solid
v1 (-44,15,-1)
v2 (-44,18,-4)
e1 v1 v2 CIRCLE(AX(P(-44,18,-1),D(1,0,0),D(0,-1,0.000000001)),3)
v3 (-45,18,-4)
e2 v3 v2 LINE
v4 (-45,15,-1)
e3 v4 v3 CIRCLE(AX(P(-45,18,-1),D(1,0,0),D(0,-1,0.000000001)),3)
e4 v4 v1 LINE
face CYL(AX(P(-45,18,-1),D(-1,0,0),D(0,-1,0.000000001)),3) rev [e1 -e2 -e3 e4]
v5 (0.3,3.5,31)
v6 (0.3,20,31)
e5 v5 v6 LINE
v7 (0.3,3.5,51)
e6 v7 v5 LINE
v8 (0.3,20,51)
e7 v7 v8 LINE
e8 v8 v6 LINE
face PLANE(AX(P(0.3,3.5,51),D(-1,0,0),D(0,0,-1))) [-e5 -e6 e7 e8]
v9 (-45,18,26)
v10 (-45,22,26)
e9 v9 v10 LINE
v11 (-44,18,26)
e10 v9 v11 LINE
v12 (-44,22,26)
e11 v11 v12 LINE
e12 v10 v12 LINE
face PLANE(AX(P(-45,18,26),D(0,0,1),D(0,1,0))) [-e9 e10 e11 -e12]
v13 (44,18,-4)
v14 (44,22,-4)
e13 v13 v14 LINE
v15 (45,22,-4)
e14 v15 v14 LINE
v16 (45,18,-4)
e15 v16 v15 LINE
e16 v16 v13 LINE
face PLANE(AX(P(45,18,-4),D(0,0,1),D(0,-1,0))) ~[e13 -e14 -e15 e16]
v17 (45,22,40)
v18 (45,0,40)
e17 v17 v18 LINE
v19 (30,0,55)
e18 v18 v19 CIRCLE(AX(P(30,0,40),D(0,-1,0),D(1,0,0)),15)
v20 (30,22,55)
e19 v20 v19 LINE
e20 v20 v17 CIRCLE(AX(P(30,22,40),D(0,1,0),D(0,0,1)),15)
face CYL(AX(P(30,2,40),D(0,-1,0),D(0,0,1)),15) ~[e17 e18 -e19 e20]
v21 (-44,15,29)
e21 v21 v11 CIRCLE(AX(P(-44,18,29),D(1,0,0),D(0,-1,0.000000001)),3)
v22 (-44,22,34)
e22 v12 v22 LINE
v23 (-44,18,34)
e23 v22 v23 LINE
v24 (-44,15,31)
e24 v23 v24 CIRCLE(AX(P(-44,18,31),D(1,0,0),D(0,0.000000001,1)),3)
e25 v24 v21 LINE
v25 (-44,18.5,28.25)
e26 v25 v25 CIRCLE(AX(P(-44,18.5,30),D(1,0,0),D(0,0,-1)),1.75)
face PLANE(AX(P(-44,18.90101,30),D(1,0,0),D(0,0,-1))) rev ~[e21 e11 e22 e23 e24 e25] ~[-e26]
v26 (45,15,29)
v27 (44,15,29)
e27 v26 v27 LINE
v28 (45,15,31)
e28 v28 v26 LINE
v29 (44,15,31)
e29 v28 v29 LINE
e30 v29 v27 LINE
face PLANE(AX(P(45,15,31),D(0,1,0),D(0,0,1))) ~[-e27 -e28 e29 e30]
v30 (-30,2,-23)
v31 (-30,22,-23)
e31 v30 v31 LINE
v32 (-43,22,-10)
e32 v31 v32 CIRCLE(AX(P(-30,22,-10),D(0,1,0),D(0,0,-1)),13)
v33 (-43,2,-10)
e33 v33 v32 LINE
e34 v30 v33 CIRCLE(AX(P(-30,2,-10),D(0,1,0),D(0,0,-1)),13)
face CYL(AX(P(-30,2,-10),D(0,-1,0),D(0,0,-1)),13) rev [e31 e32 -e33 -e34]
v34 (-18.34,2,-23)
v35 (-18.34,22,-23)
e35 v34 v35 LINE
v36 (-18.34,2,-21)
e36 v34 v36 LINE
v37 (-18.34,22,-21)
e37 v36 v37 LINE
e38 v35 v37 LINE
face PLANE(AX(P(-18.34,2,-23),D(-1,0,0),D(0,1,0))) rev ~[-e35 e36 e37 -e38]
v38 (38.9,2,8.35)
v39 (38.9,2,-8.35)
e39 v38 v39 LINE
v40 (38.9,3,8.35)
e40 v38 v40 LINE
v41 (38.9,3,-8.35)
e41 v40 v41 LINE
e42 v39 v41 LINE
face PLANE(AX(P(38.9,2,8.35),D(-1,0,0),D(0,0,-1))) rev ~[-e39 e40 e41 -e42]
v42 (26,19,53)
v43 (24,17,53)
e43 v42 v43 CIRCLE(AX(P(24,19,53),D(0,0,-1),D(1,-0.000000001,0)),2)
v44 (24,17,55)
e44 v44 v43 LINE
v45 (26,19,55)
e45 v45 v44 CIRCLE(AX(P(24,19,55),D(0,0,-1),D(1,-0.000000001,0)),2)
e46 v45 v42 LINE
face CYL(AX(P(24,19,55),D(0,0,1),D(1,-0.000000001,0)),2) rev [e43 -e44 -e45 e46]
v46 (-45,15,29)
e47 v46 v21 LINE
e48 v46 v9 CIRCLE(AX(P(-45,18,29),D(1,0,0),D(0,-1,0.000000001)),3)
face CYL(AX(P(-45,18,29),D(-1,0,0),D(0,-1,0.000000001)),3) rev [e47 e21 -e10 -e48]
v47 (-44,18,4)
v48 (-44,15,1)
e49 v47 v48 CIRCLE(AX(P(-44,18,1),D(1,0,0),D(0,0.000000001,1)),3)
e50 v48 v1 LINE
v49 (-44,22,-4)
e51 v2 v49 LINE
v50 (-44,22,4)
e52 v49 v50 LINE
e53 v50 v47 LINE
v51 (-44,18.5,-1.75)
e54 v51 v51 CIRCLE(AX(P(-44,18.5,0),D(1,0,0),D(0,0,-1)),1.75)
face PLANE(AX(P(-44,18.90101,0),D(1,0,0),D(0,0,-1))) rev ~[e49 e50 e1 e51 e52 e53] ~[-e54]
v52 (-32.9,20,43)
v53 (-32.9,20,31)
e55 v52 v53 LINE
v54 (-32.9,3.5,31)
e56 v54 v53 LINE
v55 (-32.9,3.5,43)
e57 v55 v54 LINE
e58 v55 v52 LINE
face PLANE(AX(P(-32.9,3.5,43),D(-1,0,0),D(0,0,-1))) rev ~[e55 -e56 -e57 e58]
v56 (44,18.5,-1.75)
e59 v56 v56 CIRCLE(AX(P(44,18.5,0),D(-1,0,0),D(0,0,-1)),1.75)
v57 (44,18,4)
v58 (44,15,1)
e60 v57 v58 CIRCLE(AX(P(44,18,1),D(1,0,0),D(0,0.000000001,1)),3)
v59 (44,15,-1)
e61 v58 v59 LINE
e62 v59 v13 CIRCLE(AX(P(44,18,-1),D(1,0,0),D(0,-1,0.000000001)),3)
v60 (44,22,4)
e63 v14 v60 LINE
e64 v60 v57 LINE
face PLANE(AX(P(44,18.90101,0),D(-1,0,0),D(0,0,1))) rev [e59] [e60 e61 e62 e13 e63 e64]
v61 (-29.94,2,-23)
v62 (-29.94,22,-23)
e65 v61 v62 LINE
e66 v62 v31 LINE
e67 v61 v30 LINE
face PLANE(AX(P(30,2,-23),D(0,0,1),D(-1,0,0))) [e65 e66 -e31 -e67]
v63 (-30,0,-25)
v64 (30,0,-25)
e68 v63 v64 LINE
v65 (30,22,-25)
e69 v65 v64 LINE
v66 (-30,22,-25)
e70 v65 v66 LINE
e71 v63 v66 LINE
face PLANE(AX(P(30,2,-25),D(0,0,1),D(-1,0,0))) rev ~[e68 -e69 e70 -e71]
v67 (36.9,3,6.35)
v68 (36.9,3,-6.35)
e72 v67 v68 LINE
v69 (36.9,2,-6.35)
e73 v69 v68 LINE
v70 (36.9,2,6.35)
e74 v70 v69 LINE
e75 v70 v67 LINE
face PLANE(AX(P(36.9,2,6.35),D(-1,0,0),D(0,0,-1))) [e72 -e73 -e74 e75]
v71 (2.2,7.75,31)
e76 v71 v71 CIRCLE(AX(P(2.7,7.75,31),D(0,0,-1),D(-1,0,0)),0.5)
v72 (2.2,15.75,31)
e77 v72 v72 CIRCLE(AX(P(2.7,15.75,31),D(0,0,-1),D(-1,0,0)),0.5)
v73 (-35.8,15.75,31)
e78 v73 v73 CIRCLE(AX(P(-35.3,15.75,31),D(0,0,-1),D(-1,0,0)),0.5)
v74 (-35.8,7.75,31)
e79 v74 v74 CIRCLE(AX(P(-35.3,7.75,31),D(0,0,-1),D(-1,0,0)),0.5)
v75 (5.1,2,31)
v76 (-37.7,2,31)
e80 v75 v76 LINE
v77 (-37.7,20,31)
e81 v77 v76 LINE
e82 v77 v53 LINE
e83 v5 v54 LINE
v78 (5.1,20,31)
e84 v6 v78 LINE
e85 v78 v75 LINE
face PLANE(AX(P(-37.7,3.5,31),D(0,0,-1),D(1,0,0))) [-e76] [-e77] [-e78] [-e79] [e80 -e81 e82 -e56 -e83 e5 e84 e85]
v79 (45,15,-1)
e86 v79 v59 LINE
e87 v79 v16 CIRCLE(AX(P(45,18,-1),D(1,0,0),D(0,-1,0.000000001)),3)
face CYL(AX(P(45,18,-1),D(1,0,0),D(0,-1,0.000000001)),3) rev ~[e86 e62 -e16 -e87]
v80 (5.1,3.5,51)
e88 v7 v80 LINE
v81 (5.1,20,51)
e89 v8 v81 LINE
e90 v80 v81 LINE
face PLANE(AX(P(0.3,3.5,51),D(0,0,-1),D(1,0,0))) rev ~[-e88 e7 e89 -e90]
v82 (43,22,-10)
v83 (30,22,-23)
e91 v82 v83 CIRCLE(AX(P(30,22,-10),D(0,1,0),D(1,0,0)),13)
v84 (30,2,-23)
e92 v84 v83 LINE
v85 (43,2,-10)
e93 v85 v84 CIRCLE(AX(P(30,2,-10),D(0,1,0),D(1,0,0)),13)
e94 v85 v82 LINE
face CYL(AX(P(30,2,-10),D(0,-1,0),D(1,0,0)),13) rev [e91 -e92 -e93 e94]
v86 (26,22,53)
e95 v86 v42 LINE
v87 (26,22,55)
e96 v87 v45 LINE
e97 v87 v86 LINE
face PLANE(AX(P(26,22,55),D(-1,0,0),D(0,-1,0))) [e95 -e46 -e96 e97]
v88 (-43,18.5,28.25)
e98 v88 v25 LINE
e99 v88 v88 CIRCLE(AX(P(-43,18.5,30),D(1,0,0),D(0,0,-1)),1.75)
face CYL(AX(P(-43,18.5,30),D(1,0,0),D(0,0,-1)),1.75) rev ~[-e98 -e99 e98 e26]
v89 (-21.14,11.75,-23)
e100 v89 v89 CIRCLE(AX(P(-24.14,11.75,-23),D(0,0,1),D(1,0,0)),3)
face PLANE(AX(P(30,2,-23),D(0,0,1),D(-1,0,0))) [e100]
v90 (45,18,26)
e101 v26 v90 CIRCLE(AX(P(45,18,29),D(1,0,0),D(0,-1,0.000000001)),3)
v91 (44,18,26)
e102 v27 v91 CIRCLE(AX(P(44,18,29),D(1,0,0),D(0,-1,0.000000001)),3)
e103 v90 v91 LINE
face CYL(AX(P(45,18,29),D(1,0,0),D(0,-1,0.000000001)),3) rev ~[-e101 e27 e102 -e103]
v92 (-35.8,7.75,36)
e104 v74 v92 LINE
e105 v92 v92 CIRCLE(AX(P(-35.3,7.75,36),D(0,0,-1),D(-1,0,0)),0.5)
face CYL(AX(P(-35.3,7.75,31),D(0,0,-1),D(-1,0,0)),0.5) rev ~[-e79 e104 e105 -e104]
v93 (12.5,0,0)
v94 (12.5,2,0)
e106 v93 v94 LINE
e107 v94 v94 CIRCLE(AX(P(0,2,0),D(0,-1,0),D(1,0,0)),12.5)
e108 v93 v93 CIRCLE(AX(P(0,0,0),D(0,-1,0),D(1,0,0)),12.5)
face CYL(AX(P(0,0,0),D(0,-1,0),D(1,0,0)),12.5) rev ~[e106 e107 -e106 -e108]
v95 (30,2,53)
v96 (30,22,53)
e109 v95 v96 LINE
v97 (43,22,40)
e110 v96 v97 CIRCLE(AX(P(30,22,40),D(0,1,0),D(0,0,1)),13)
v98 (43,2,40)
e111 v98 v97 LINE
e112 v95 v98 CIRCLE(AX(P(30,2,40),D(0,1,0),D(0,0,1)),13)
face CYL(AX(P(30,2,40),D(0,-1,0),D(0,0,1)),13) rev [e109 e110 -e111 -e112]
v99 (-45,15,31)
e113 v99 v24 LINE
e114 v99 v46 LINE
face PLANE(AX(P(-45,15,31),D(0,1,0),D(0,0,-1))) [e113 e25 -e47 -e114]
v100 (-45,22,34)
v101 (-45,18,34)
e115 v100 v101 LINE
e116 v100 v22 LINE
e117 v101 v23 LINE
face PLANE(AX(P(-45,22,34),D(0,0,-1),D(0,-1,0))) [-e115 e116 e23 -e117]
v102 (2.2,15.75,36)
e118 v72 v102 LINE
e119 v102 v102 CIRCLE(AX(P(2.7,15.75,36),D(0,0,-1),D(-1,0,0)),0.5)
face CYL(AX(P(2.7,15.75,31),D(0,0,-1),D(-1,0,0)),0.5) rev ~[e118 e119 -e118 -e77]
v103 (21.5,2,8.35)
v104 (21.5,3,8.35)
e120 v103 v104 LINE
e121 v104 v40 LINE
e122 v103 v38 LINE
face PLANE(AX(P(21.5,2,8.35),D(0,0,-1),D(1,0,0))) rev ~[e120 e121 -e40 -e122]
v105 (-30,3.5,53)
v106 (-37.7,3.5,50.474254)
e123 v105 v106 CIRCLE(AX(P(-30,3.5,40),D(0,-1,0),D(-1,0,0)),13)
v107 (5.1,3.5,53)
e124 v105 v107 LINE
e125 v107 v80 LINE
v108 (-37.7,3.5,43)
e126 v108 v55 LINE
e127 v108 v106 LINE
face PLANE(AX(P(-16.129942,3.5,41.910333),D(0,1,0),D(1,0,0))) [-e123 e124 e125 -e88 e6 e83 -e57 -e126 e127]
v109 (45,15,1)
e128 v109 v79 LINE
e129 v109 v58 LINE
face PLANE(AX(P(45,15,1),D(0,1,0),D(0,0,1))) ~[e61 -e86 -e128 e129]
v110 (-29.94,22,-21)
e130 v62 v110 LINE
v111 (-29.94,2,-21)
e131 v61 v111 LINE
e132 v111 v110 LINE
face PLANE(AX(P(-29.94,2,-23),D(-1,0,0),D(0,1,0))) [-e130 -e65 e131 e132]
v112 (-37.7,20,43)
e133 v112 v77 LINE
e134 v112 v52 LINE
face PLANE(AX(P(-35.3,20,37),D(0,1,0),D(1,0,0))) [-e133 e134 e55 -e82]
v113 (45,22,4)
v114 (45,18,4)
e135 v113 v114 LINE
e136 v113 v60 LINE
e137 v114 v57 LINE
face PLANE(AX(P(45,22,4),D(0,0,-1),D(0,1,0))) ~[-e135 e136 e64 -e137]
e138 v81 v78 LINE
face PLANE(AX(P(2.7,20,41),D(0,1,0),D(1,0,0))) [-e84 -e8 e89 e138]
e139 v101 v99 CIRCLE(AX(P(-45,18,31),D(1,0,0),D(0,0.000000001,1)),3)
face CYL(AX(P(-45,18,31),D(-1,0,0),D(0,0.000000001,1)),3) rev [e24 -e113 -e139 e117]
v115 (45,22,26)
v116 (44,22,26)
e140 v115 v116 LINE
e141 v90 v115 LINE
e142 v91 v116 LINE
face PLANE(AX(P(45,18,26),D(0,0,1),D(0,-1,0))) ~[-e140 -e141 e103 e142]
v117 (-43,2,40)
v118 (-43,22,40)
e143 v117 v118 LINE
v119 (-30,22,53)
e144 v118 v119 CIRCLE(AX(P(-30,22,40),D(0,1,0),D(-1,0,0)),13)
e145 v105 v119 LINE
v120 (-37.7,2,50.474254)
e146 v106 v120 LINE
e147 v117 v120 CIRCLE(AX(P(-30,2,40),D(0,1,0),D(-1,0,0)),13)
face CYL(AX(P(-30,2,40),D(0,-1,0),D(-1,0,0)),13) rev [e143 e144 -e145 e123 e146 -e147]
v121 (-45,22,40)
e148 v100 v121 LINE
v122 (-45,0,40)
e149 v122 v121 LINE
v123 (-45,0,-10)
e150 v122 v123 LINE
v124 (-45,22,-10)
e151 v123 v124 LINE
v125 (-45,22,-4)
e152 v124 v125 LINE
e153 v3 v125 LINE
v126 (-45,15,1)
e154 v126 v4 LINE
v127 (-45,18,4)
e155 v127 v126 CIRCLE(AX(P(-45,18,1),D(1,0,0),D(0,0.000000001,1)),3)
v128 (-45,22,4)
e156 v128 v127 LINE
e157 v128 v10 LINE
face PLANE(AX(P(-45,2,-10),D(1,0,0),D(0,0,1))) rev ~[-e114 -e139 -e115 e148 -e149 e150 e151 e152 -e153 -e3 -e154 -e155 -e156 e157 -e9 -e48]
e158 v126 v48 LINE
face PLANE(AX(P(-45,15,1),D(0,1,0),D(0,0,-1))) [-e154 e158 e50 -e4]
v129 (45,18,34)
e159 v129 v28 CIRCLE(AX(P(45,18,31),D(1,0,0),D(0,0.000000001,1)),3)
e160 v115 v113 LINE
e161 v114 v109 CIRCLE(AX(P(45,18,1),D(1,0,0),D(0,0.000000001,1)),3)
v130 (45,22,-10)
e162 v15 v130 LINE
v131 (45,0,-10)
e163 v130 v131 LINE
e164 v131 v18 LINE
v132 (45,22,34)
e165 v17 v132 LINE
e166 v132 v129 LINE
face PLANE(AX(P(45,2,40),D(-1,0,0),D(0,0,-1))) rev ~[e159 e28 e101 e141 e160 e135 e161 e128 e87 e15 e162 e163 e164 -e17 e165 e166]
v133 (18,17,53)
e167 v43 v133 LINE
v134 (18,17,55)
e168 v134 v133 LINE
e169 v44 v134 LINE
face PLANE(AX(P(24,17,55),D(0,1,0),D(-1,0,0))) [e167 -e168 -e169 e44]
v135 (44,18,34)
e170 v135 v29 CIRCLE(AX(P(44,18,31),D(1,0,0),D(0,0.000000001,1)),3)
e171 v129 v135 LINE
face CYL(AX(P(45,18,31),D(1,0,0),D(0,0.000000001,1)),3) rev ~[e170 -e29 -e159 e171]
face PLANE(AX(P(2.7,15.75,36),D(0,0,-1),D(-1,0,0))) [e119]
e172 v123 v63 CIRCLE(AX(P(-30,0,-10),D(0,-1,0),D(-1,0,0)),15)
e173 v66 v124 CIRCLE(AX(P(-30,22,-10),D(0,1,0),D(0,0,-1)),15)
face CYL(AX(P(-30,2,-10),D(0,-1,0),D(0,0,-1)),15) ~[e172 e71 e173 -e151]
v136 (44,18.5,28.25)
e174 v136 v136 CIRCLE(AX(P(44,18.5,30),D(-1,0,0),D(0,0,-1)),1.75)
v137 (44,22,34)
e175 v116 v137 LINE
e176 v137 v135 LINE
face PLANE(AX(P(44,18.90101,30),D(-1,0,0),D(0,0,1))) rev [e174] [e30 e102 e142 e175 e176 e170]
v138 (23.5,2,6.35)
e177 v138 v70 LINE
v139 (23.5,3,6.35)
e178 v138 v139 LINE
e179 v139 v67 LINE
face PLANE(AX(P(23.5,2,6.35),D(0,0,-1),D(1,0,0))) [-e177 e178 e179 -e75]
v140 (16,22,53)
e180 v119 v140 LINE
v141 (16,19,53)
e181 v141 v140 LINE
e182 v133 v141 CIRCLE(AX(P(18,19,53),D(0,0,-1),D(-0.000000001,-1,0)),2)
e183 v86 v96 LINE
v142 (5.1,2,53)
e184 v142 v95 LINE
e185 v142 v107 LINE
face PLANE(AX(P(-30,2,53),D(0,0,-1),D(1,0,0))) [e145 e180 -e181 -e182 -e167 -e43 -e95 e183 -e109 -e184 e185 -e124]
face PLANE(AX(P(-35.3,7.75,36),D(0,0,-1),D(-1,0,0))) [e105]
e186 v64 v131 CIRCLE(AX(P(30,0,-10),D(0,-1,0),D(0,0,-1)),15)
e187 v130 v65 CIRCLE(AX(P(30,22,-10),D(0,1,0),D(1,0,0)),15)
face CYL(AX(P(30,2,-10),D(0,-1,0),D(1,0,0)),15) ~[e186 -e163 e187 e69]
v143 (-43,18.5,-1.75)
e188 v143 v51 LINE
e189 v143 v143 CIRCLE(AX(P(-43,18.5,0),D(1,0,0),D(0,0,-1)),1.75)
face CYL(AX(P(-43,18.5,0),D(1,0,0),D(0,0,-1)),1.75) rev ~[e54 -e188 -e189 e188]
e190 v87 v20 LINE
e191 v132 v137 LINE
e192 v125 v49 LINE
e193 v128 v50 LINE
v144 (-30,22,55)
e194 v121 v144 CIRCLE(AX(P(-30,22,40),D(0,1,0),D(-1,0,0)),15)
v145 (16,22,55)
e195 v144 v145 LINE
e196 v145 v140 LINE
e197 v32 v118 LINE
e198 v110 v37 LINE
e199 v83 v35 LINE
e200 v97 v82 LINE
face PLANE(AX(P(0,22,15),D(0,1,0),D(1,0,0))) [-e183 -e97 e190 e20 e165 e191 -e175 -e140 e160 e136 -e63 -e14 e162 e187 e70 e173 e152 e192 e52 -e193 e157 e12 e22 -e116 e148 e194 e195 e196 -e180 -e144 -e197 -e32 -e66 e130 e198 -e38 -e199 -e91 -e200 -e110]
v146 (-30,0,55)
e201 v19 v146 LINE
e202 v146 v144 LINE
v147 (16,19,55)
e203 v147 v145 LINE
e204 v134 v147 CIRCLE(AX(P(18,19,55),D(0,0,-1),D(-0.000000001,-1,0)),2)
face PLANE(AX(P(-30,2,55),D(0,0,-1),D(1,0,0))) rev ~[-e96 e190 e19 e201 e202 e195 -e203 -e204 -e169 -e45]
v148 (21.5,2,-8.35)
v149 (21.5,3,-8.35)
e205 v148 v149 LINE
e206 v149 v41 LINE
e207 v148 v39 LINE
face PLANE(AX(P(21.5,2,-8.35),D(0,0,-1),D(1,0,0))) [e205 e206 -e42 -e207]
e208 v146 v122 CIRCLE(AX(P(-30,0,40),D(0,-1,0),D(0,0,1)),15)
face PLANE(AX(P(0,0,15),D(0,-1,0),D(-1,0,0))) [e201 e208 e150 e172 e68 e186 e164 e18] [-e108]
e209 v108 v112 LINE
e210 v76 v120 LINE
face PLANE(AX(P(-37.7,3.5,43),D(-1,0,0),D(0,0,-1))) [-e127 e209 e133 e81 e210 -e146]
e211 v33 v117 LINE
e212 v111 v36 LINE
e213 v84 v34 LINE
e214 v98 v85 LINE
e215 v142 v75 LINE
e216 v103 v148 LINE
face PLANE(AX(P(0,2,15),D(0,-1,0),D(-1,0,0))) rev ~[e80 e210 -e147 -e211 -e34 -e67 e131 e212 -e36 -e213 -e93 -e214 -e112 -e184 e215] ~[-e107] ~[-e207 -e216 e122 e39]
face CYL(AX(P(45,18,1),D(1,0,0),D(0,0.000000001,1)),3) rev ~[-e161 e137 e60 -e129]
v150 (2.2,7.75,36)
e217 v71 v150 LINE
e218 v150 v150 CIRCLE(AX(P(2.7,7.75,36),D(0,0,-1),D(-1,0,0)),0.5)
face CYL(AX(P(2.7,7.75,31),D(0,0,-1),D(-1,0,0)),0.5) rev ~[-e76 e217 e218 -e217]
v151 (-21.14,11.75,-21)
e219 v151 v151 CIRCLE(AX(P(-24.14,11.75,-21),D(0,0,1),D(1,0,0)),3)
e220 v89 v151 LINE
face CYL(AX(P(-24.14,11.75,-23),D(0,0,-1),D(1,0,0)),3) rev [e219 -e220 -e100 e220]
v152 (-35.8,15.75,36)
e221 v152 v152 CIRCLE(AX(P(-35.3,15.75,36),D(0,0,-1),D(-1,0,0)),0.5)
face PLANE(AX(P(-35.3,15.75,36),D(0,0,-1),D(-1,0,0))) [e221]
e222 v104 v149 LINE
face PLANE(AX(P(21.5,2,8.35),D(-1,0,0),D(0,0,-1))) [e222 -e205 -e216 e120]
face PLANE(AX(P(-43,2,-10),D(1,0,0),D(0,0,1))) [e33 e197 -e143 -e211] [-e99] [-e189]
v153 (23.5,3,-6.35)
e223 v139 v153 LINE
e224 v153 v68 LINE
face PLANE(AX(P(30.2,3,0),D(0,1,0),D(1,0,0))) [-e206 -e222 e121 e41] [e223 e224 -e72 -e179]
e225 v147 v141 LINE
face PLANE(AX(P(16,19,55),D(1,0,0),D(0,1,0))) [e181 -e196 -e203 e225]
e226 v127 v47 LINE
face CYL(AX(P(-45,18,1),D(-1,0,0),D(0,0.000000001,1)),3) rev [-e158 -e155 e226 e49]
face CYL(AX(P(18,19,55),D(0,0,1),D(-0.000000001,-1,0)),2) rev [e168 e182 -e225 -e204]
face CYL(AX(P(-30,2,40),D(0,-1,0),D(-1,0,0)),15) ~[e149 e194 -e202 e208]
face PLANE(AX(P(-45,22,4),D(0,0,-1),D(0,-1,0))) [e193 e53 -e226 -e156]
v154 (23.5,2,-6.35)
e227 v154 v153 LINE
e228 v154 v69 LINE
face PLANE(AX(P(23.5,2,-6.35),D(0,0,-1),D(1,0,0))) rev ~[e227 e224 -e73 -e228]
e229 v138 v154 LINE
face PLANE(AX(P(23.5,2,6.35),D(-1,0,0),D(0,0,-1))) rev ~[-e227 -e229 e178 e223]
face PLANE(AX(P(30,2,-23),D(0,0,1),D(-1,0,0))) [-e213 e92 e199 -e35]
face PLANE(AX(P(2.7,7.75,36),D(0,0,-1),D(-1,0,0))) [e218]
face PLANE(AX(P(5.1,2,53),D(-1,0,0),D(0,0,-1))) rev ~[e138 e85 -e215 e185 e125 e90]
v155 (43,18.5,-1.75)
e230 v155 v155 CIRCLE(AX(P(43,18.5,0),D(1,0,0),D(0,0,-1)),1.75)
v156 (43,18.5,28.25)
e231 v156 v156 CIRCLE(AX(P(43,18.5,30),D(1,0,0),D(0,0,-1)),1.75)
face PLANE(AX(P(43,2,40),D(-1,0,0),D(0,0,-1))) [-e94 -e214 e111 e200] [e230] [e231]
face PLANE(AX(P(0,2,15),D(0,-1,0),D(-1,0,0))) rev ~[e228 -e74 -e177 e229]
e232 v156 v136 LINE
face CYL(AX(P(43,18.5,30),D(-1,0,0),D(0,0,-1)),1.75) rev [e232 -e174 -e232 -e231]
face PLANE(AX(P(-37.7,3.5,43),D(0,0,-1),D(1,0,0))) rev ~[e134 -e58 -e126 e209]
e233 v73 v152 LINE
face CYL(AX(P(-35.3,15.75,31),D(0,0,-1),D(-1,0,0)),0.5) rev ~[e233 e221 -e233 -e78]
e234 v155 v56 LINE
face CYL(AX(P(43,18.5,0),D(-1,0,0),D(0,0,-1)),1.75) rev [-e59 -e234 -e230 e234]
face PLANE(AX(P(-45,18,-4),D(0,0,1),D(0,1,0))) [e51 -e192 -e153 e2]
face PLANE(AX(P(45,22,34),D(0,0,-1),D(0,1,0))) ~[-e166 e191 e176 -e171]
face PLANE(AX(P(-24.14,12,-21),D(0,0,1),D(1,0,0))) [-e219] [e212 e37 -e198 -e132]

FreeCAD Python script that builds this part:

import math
import FreeCAD as App
import Part
import Sketcher
from FreeCAD import Vector
Q = App.Units.Quantity

doc = App.newDocument("Part")
body = doc.addObject("PartDesign::Body", "Body")

sketch1 = doc.addObject("Sketcher::SketchObject", "Sketch")
body.addObject(sketch1)
sketch1.AttachmentSupport = (doc.XZ_Plane, [""])
sketch1.MapMode = "FlatFace"
sketch1.addGeometry(Part.LineSegment(Vector(30, -25, 0), Vector(-30, -25, 0)), False)
sketch1.addGeometry(Part.ArcOfCircle(Part.Circle(Vector(-30, -10, 0), Vector(0, 0, 1), 15), math.radians(180), math.radians(270)), False)
sketch1.addGeometry(Part.LineSegment(Vector(-45, -10, 0), Vector(-45, 40, 0)), False)
sketch1.addGeometry(Part.ArcOfCircle(Part.Circle(Vector(-30, 40, 0), Vector(0, 0, 1), 15), math.radians(90), math.radians(180)), False)
sketch1.addGeometry(Part.LineSegment(Vector(-30, 55, 0), Vector(30, 55, 0)), False)
sketch1.addGeometry(Part.ArcOfCircle(Part.Circle(Vector(30, 40, 0), Vector(0, 0, 1), 15), math.radians(0), math.radians(90)), False)
sketch1.addGeometry(Part.LineSegment(Vector(45, 40, 0), Vector(45, -10, 0)), False)
sketch1.addGeometry(Part.ArcOfCircle(Part.Circle(Vector(30, -10, 0), Vector(0, 0, 1), 15), math.radians(-90), math.radians(0)), False)
sketch1.addConstraint(Sketcher.Constraint("Tangent", 0, 2, 1, 2))
sketch1.addConstraint(Sketcher.Constraint("Tangent", 1, 1, 2, 1))
sketch1.addConstraint(Sketcher.Constraint("Tangent", 2, 2, 3, 2))
sketch1.addConstraint(Sketcher.Constraint("Tangent", 3, 1, 4, 1))
sketch1.addConstraint(Sketcher.Constraint("Tangent", 4, 2, 5, 2))
sketch1.addConstraint(Sketcher.Constraint("Tangent", 5, 1, 6, 1))
sketch1.addConstraint(Sketcher.Constraint("Tangent", 6, 2, 7, 2))
sketch1.addConstraint(Sketcher.Constraint("Tangent", 7, 1, 0, 1))
sketch1.addConstraint(Sketcher.Constraint("Horizontal", 0))
sketch1.addConstraint(Sketcher.Constraint("Vertical", 2))
sketch1.addConstraint(Sketcher.Constraint("Horizontal", 4))
sketch1.addConstraint(Sketcher.Constraint("Vertical", 6))
sketch1.addConstraint(Sketcher.Constraint("Equal", 1, 3))
sketch1.addConstraint(Sketcher.Constraint("Equal", 3, 5))
sketch1.addConstraint(Sketcher.Constraint("Equal", 5, 7))
sketch1.addConstraint(Sketcher.Constraint("Radius", 1, 15.0))
sketch1.addConstraint(Sketcher.Constraint("DistanceX", 0, 2, 0, 1, 60.0))
sketch1.addConstraint(Sketcher.Constraint("DistanceY", 2, 1, 2, 2, 50.0))
sketch1.addConstraint(Sketcher.Constraint("DistanceX", 1, 3, -1, 1, 30.0))
sketch1.addConstraint(Sketcher.Constraint("DistanceY", 1, 3, -1, 1, 10.0))
pad1 = doc.addObject("PartDesign::Pad", "Pad")
body.addObject(pad1)
pad1.Profile = sketch1
pad1.Length = 2
pad1.Reversed = True

sketch2 = doc.addObject("Sketcher::SketchObject", "Sketch001")
body.addObject(sketch2)
sketch2.AttachmentSupport = (doc.XZ_Plane, [""])
sketch2.MapMode = "FlatFace"
sketch2.AttachmentOffset = App.Placement(Vector(0, 0, -2), App.Rotation())
sketch2.addGeometry(Part.LineSegment(Vector(30, -25, 0), Vector(-30, -25, 0)), False)
sketch2.addGeometry(Part.ArcOfCircle(Part.Circle(Vector(-30, -10, 0), Vector(0, 0, 1), 15), math.radians(180), math.radians(270)), False)
sketch2.addGeometry(Part.LineSegment(Vector(-45, -10, 0), Vector(-45, 40, 0)), False)
sketch2.addGeometry(Part.ArcOfCircle(Part.Circle(Vector(-30, 40, 0), Vector(0, 0, 1), 15), math.radians(90), math.radians(180)), False)
sketch2.addGeometry(Part.LineSegment(Vector(-30, 55, 0), Vector(30, 55, 0)), False)
sketch2.addGeometry(Part.ArcOfCircle(Part.Circle(Vector(30, 40, 0), Vector(0, 0, 1), 15), math.radians(0), math.radians(90)), False)
sketch2.addGeometry(Part.LineSegment(Vector(45, 40, 0), Vector(45, -10, 0)), False)
sketch2.addGeometry(Part.ArcOfCircle(Part.Circle(Vector(30, -10, 0), Vector(0, 0, 1), 15), math.radians(-90), math.radians(0)), False)
sketch2.addGeometry(Part.LineSegment(Vector(-30, -23, 0), Vector(30, -23, 0)), False)
sketch2.addGeometry(Part.ArcOfCircle(Part.Circle(Vector(30, -10, 0), Vector(0, 0, 1), 13), math.radians(-90), math.radians(0)), False)
sketch2.addGeometry(Part.LineSegment(Vector(43, -10, 0), Vector(43, 40, 0)), False)
sketch2.addGeometry(Part.ArcOfCircle(Part.Circle(Vector(30, 40, 0), Vector(0, 0, 1), 13), math.radians(0), math.radians(90)), False)
sketch2.addGeometry(Part.LineSegment(Vector(30, 53, 0), Vector(-30, 53, 0)), False)
sketch2.addGeometry(Part.ArcOfCircle(Part.Circle(Vector(-30, 40, 0), Vector(0, 0, 1), 13), math.radians(90), math.radians(180)), False)
sketch2.addGeometry(Part.LineSegment(Vector(-43, 40, 0), Vector(-43, -10, 0)), False)
sketch2.addGeometry(Part.ArcOfCircle(Part.Circle(Vector(-30, -10, 0), Vector(0, 0, 1), 13), math.radians(-180), math.radians(-90)), False)
sketch2.addConstraint(Sketcher.Constraint("Tangent", 0, 2, 1, 2))
sketch2.addConstraint(Sketcher.Constraint("Tangent", 1, 1, 2, 1))
sketch2.addConstraint(Sketcher.Constraint("Tangent", 2, 2, 3, 2))
sketch2.addConstraint(Sketcher.Constraint("Tangent", 3, 1, 4, 1))
sketch2.addConstraint(Sketcher.Constraint("Tangent", 4, 2, 5, 2))
sketch2.addConstraint(Sketcher.Constraint("Tangent", 5, 1, 6, 1))
sketch2.addConstraint(Sketcher.Constraint("Tangent", 6, 2, 7, 2))
sketch2.addConstraint(Sketcher.Constraint("Tangent", 7, 1, 0, 1))
sketch2.addConstraint(Sketcher.Constraint("Tangent", 8, 2, 9, 1))
sketch2.addConstraint(Sketcher.Constraint("Tangent", 9, 2, 10, 1))
sketch2.addConstraint(Sketcher.Constraint("Tangent", 10, 2, 11, 1))
sketch2.addConstraint(Sketcher.Constraint("Tangent", 11, 2, 12, 1))
sketch2.addConstraint(Sketcher.Constraint("Tangent", 12, 2, 13, 1))
sketch2.addConstraint(Sketcher.Constraint("Tangent", 13, 2, 14, 1))
sketch2.addConstraint(Sketcher.Constraint("Tangent", 14, 2, 15, 1))
sketch2.addConstraint(Sketcher.Constraint("Tangent", 15, 2, 8, 1))
sketch2.addConstraint(Sketcher.Constraint("Horizontal", 0))
sketch2.addConstraint(Sketcher.Constraint("Vertical", 2))
sketch2.addConstraint(Sketcher.Constraint("Horizontal", 4))
sketch2.addConstraint(Sketcher.Constraint("Vertical", 6))
sketch2.addConstraint(Sketcher.Constraint("Horizontal", 8))
sketch2.addConstraint(Sketcher.Constraint("Vertical", 10))
sketch2.addConstraint(Sketcher.Constraint("Horizontal", 12))
sketch2.addConstraint(Sketcher.Constraint("Vertical", 14))
sketch2.addConstraint(Sketcher.Constraint("Coincident", 9, 3, 7, 3))
sketch2.addConstraint(Sketcher.Constraint("Coincident", 11, 3, 5, 3))
sketch2.addConstraint(Sketcher.Constraint("Coincident", 13, 3, 3, 3))
sketch2.addConstraint(Sketcher.Constraint("Equal", 1, 3))
sketch2.addConstraint(Sketcher.Constraint("Equal", 3, 5))
sketch2.addConstraint(Sketcher.Constraint("Equal", 5, 7))
sketch2.addConstraint(Sketcher.Constraint("Equal", 13, 15))
sketch2.addConstraint(Sketcher.Constraint("Radius", 1, 15.0))
sketch2.addConstraint(Sketcher.Constraint("Radius", 9, 13.0))
sketch2.addConstraint(Sketcher.Constraint("DistanceX", 0, 2, 0, 1, 60.0))
sketch2.addConstraint(Sketcher.Constraint("DistanceY", 2, 1, 2, 2, 50.0))
sketch2.addConstraint(Sketcher.Constraint("DistanceX", 1, 3, -1, 1, 30.0))
sketch2.addConstraint(Sketcher.Constraint("DistanceY", 1, 3, -1, 1, 10.0))
pad2 = doc.addObject("PartDesign::Pad", "Pad001")
body.addObject(pad2)
pad2.Profile = sketch2
pad2.Length = 20
pad2.Reversed = True

sketch3 = doc.addObject("Sketcher::SketchObject", "Sketch002")
body.addObject(sketch3)
sketch3.AttachmentSupport = (doc.XZ_Plane, [""])
sketch3.MapMode = "FlatFace"
sketch3.addGeometry(Part.Circle(Vector(0, 0, 0), Vector(0, 0, 1), 12), False)
sketch3.addConstraint(Sketcher.Constraint("Coincident", 0, 3, -1, 1))
sketch3.addConstraint(Sketcher.Constraint("Diameter", 0, 25.0))
pocket1 = doc.addObject("PartDesign::Pocket", "Pocket")
body.addObject(pocket1)
pocket1.Profile = sketch3
pocket1.Type = "ThroughAll"

sketch4 = doc.addObject("Sketcher::SketchObject", "Sketch003")
body.addObject(sketch4)
sketch4.AttachmentSupport = (doc.XZ_Plane, [""])
sketch4.MapMode = "FlatFace"
sketch4.AttachmentOffset = App.Placement(Vector(0, 0, -2), App.Rotation())
sketch4.addGeometry(Part.LineSegment(Vector(-36, 53, 0), Vector(5.1, 53, 0)), False)
sketch4.addGeometry(Part.LineSegment(Vector(5.1, 53, 0), Vector(5.1, 31, 0)), False)
sketch4.addGeometry(Part.LineSegment(Vector(5.1, 31, 0), Vector(-37.7, 31, 0)), False)
sketch4.addGeometry(Part.LineSegment(Vector(-37.7, 31, 0), Vector(-37.7, 51.3, 0)), False)
sketch4.addGeometry(Part.LineSegment(Vector(-37.7, 51.3, 0), Vector(-36, 53, 0)), False)
sketch4.addConstraint(Sketcher.Constraint("Coincident", 0, 2, 1, 1))
sketch4.addConstraint(Sketcher.Constraint("Coincident", 1, 2, 2, 1))
sketch4.addConstraint(Sketcher.Constraint("Coincident", 2, 2, 3, 1))
sketch4.addConstraint(Sketcher.Constraint("Coincident", 3, 2, 4, 1))
sketch4.addConstraint(Sketcher.Constraint("Coincident", 4, 2, 0, 1))
sketch4.addConstraint(Sketcher.Constraint("Horizontal", 0))
sketch4.addConstraint(Sketcher.Constraint("Vertical", 1))
sketch4.addConstraint(Sketcher.Constraint("Horizontal", 2))
sketch4.addConstraint(Sketcher.Constraint("Vertical", 3))
sketch4.addConstraint(Sketcher.Constraint("DistanceY", 1, 2, 1, 1, 22.0))
sketch4.addConstraint(Sketcher.Constraint("Angle", 4, Q("45 deg")))
sketch4.addConstraint(Sketcher.Constraint("DistanceX", 2, 2, 2, 1, 42.8))
sketch4.addConstraint(Sketcher.Constraint("DistanceY", -1, 1, 0, 2, 53.0))
sketch4.addConstraint(Sketcher.Constraint("Distance", 4, 2.4))
sketch4.addConstraint(Sketcher.Constraint("DistanceX", -1, 1, 0, 2, 5.1))
pad3 = doc.addObject("PartDesign::Pad", "Pad002")
body.addObject(pad3)
pad3.Profile = sketch4
pad3.Length = 1.5
pad3.Reversed = True

sketch5 = doc.addObject("Sketcher::SketchObject", "Sketch004")
body.addObject(sketch5)
sketch5.AttachmentSupport = (doc.XZ_Plane, [""])
sketch5.MapMode = "FlatFace"
sketch5.AttachmentOffset = App.Placement(Vector(0, 0, -2), App.Rotation())
sketch5.addGeometry(Part.LineSegment(Vector(22, -8, 0), Vector(22, 8, 0)), False)
sketch5.addGeometry(Part.LineSegment(Vector(22, 8, 0), Vector(39, 8, 0)), False)
sketch5.addGeometry(Part.LineSegment(Vector(39, 8, 0), Vector(39, -8, 0)), False)
sketch5.addGeometry(Part.LineSegment(Vector(39, -8, 0), Vector(22, -8, 0)), False)
sketch5.addGeometry(Part.LineSegment(Vector(37, 6, 0), Vector(24, 6, 0)), False)
sketch5.addGeometry(Part.LineSegment(Vector(24, 6, 0), Vector(24, -6, 0)), False)
sketch5.addGeometry(Part.LineSegment(Vector(24, -6, 0), Vector(37, -6, 0)), False)
sketch5.addGeometry(Part.LineSegment(Vector(37, -6, 0), Vector(37, 6, 0)), False)
sketch5.addConstraint(Sketcher.Constraint("Coincident", 0, 2, 1, 1))
sketch5.addConstraint(Sketcher.Constraint("Coincident", 1, 2, 2, 1))
sketch5.addConstraint(Sketcher.Constraint("Coincident", 2, 2, 3, 1))
sketch5.addConstraint(Sketcher.Constraint("Coincident", 3, 2, 0, 1))
sketch5.addConstraint(Sketcher.Constraint("Coincident", 4, 2, 5, 1))
sketch5.addConstraint(Sketcher.Constraint("Coincident", 5, 2, 6, 1))
sketch5.addConstraint(Sketcher.Constraint("Coincident", 6, 2, 7, 1))
sketch5.addConstraint(Sketcher.Constraint("Coincident", 7, 2, 4, 1))
sketch5.addConstraint(Sketcher.Constraint("Vertical", 0))
sketch5.addConstraint(Sketcher.Constraint("Horizontal", 1))
sketch5.addConstraint(Sketcher.Constraint("Vertical", 2))
sketch5.addConstraint(Sketcher.Constraint("Horizontal", 3))
sketch5.addConstraint(Sketcher.Constraint("Horizontal", 4))
sketch5.addConstraint(Sketcher.Constraint("Vertical", 5))
sketch5.addConstraint(Sketcher.Constraint("Horizontal", 6))
sketch5.addConstraint(Sketcher.Constraint("Vertical", 7))
sketch5.addConstraint(Sketcher.Constraint("DistanceX", 1, 1, 1, 2, 17.4))
sketch5.addConstraint(Sketcher.Constraint("DistanceX", 4, 2, 4, 1, 13.4))
sketch5.addConstraint(Sketcher.Constraint("DistanceY", 0, 1, 0, 2, 16.7))
sketch5.addConstraint(Sketcher.Constraint("DistanceY", 5, 2, 5, 1, 12.7))
sketch5.addConstraint(Sketcher.Constraint("DistanceX", 0, 2, 4, 2, 2.0))
sketch5.addConstraint(Sketcher.Constraint("DistanceY", 4, 2, 0, 2, 2.0))
sketch5.addConstraint(Sketcher.Constraint("DistanceX", -1, 1, 0, 2, 21.5))
sketch5.addConstraint(Sketcher.Constraint("DistanceY", -1, 1, 0, 2, 8.35))
pad4 = doc.addObject("PartDesign::Pad", "Pad003")
body.addObject(pad4)
pad4.Profile = sketch5
pad4.Length = 1
pad4.Reversed = True

sketch6 = doc.addObject("Sketcher::SketchObject", "Sketch005")
body.addObject(sketch6)
sketch6.AttachmentSupport = (doc.XY_Plane, [""])
sketch6.MapMode = "FlatFace"
sketch6.AttachmentOffset = App.Placement(Vector(0, 0, -23), App.Rotation())
sketch6.addGeometry(Part.LineSegment(Vector(-29.9, 22, 0), Vector(-29.9, 2, 0)), False)
sketch6.addGeometry(Part.LineSegment(Vector(-29.9, 2, 0), Vector(-18.3, 2, 0)), False)
sketch6.addGeometry(Part.LineSegment(Vector(-18.3, 2, 0), Vector(-18.3, 22, 0)), False)
sketch6.addGeometry(Part.LineSegment(Vector(-18.3, 22, 0), Vector(-29.9, 22, 0)), False)
sketch6.addGeometry(Part.Circle(Vector(-24.1, 11.8, 0), Vector(0, 0, 1), 3), False)
sketch6.addConstraint(Sketcher.Constraint("Coincident", 0, 2, 1, 1))
sketch6.addConstraint(Sketcher.Constraint("Coincident", 1, 2, 2, 1))
sketch6.addConstraint(Sketcher.Constraint("Coincident", 2, 2, 3, 1))
sketch6.addConstraint(Sketcher.Constraint("Coincident", 3, 2, 0, 1))
sketch6.addConstraint(Sketcher.Constraint("Vertical", 0))
sketch6.addConstraint(Sketcher.Constraint("Horizontal", 1))
sketch6.addConstraint(Sketcher.Constraint("Vertical", 2))
sketch6.addConstraint(Sketcher.Constraint("Horizontal", 3))
sketch6.addConstraint(Sketcher.Constraint("Diameter", 4, 6.0))
sketch6.addConstraint(Sketcher.Constraint("DistanceY", 0, 2, 0, 1, 20.0))
sketch6.addConstraint(Sketcher.Constraint("DistanceX", 1, 1, 1, 2, 11.6))
sketch6.addConstraint(Sketcher.Constraint("DistanceY", -1, 1, 0, 2, 2.0))
sketch6.addConstraint(Sketcher.Constraint("DistanceX", 0, 2, 4, 3, 5.8))
sketch6.addConstraint(Sketcher.Constraint("DistanceX", 4, 3, -1, 1, 24.14))
sketch6.addConstraint(Sketcher.Constraint("DistanceY", -1, 1, 4, 3, 11.75))
pad5 = doc.addObject("PartDesign::Pad", "Pad004")
body.addObject(pad5)
pad5.Profile = sketch6
pad5.Length = 2

sketch7 = doc.addObject("Sketcher::SketchObject", "Sketch006")
body.addObject(sketch7)
sketch7.AttachmentSupport = (doc.XZ_Plane, [""])
sketch7.MapMode = "FlatFace"
sketch7.AttachmentOffset = App.Placement(Vector(0, 0, -3.5), App.Rotation())
sketch7.addGeometry(Part.LineSegment(Vector(-37.7, 31, 0), Vector(-37.7, 43, 0)), False)
sketch7.addGeometry(Part.LineSegment(Vector(-37.7, 43, 0), Vector(-32.9, 43, 0)), False)
sketch7.addGeometry(Part.LineSegment(Vector(-32.9, 43, 0), Vector(-32.9, 31, 0)), False)
sketch7.addGeometry(Part.LineSegment(Vector(-32.9, 31, 0), Vector(-37.7, 31, 0)), False)
sketch7.addGeometry(Part.LineSegment(Vector(0.3, 31, 0), Vector(0.3, 51, 0)), False)
sketch7.addGeometry(Part.LineSegment(Vector(0.3, 51, 0), Vector(5.1, 51, 0)), False)
sketch7.addGeometry(Part.LineSegment(Vector(5.1, 51, 0), Vector(5.1, 31, 0)), False)
sketch7.addGeometry(Part.LineSegment(Vector(5.1, 31, 0), Vector(0.3, 31, 0)), False)
sketch7.addConstraint(Sketcher.Constraint("Coincident", 0, 2, 1, 1))
sketch7.addConstraint(Sketcher.Constraint("Coincident", 1, 2, 2, 1))
sketch7.addConstraint(Sketcher.Constraint("Coincident", 2, 2, 3, 1))
sketch7.addConstraint(Sketcher.Constraint("Coincident", 3, 2, 0, 1))
sketch7.addConstraint(Sketcher.Constraint("Coincident", 4, 2, 5, 1))
sketch7.addConstraint(Sketcher.Constraint("Coincident", 5, 2, 6, 1))
sketch7.addConstraint(Sketcher.Constraint("Coincident", 6, 2, 7, 1))
sketch7.addConstraint(Sketcher.Constraint("Coincident", 7, 2, 4, 1))
sketch7.addConstraint(Sketcher.Constraint("Vertical", 0))
sketch7.addConstraint(Sketcher.Constraint("Horizontal", 1))
sketch7.addConstraint(Sketcher.Constraint("Vertical", 2))
sketch7.addConstraint(Sketcher.Constraint("Horizontal", 3))
sketch7.addConstraint(Sketcher.Constraint("Vertical", 4))
sketch7.addConstraint(Sketcher.Constraint("Horizontal", 5))
sketch7.addConstraint(Sketcher.Constraint("Vertical", 6))
sketch7.addConstraint(Sketcher.Constraint("Horizontal", 7))
sketch7.addConstraint(Sketcher.Constraint("Horizontal", 3, 2, 6, 2))
sketch7.addConstraint(Sketcher.Constraint("Equal", 3, 5))
sketch7.addConstraint(Sketcher.Constraint("DistanceY", 0, 1, 0, 2, 12.0))
sketch7.addConstraint(Sketcher.Constraint("DistanceY", 4, 1, 4, 2, 20.0))
sketch7.addConstraint(Sketcher.Constraint("DistanceX", 1, 1, 1, 2, 4.8))
sketch7.addConstraint(Sketcher.Constraint("DistanceY", -1, 1, 0, 2, 43.0))
sketch7.addConstraint(Sketcher.Constraint("DistanceX", 0, 2, 4, 2, 38.0))
sketch7.addConstraint(Sketcher.Constraint("DistanceX", 0, 2, -1, 1, 37.7))
pad6 = doc.addObject("PartDesign::Pad", "Pad005")
body.addObject(pad6)
pad6.Profile = sketch7
pad6.Length = 16.5
pad6.Reversed = True

sketch8 = doc.addObject("Sketcher::SketchObject", "Sketch007")
body.addObject(sketch8)
sketch8.AttachmentSupport = (doc.XY_Plane, [""])
sketch8.MapMode = "FlatFace"
sketch8.AttachmentOffset = App.Placement(Vector(0, 0, 31), App.Rotation())
sketch8.addGeometry(Part.Circle(Vector(2.7, 15.8, 0), Vector(0, 0, 1), 0.5), False)
sketch8.addGeometry(Part.Circle(Vector(2.7, 7.8, 0), Vector(0, 0, 1), 0.5), False)
sketch8.addGeometry(Part.Circle(Vector(-35.3, 15.8, 0), Vector(0, 0, 1), 0.5), False)
sketch8.addGeometry(Part.Circle(Vector(-35.3, 7.8, 0), Vector(0, 0, 1), 0.5), False)
sketch8.addConstraint(Sketcher.Constraint("Equal", 0, 1))
sketch8.addConstraint(Sketcher.Constraint("Equal", 1, 2))
sketch8.addConstraint(Sketcher.Constraint("Equal", 2, 3))
sketch8.addConstraint(Sketcher.Constraint("Horizontal", 0, 3, 2, 3))
sketch8.addConstraint(Sketcher.Constraint("Horizontal", 1, 3, 3, 3))
sketch8.addConstraint(Sketcher.Constraint("Vertical", 0, 3, 1, 3))
sketch8.addConstraint(Sketcher.Constraint("Vertical", 2, 3, 3, 3))
sketch8.addConstraint(Sketcher.Constraint("Diameter", 0, 1.0))
sketch8.addConstraint(Sketcher.Constraint("DistanceY", 1, 3, 0, 3, 8.0))
sketch8.addConstraint(Sketcher.Constraint("DistanceX", 2, 3, 0, 3, 38.0))
sketch8.addConstraint(Sketcher.Constraint("DistanceX", -1, 1, 0, 3, 2.7))
sketch8.addConstraint(Sketcher.Constraint("DistanceY", -1, 1, 0, 3, 15.75))
pocket2 = doc.addObject("PartDesign::Pocket", "Pocket001")
body.addObject(pocket2)
pocket2.Profile = sketch8
pocket2.Length = 5
pocket2.Reversed = True

sketch9 = doc.addObject("Sketcher::SketchObject", "Sketch008")
body.addObject(sketch9)
sketch9.AttachmentSupport = (doc.XY_Plane, [""])
sketch9.MapMode = "FlatFace"
sketch9.AttachmentOffset = App.Placement(Vector(0, 0, 55), App.Rotation())
sketch9.addGeometry(Part.LineSegment(Vector(26, 22, 0), Vector(16, 22, 0)), False)
sketch9.addGeometry(Part.LineSegment(Vector(16, 22, 0), Vector(16, 19, 0)), False)
sketch9.addGeometry(Part.ArcOfCircle(Part.Circle(Vector(18, 19, 0), Vector(0, 0, 1), 2), math.radians(-180), math.radians(-90)), False)
sketch9.addGeometry(Part.LineSegment(Vector(18, 17, 0), Vector(24, 17, 0)), False)
sketch9.addGeometry(Part.ArcOfCircle(Part.Circle(Vector(24, 19, 0), Vector(0, 0, 1), 2), math.radians(-90), math.radians(0)), False)
sketch9.addGeometry(Part.LineSegment(Vector(26, 19, 0), Vector(26, 22, 0)), False)
sketch9.addConstraint(Sketcher.Constraint("Coincident", 0, 2, 1, 1))
sketch9.addConstraint(Sketcher.Constraint("Tangent", 1, 2, 2, 1))
sketch9.addConstraint(Sketcher.Constraint("Tangent", 2, 2, 3, 1))
sketch9.addConstraint(Sketcher.Constraint("Tangent", 3, 2, 4, 1))
sketch9.addConstraint(Sketcher.Constraint("Tangent", 4, 2, 5, 1))
sketch9.addConstraint(Sketcher.Constraint("Coincident", 5, 2, 0, 1))
sketch9.addConstraint(Sketcher.Constraint("Horizontal", 0))
sketch9.addConstraint(Sketcher.Constraint("Vertical", 1))
sketch9.addConstraint(Sketcher.Constraint("Horizontal", 3))
sketch9.addConstraint(Sketcher.Constraint("Vertical", 5))
sketch9.addConstraint(Sketcher.Constraint("Equal", 2, 4))
sketch9.addConstraint(Sketcher.Constraint("Radius", 2, 2.0))
sketch9.addConstraint(Sketcher.Constraint("DistanceX", 0, 2, 0, 1, 10.0))
sketch9.addConstraint(Sketcher.Constraint("DistanceY", 1, 2, 1, 1, 3.0))
sketch9.addConstraint(Sketcher.Constraint("DistanceX", -1, 1, 2, 3, 18.0))
sketch9.addConstraint(Sketcher.Constraint("DistanceY", -1, 1, 2, 3, 19.0))
pocket3 = doc.addObject("PartDesign::Pocket", "Pocket002")
body.addObject(pocket3)
pocket3.Profile = sketch9
pocket3.Length = 2

sketch10 = doc.addObject("Sketcher::SketchObject", "Sketch009")
body.addObject(sketch10)
sketch10.AttachmentSupport = (doc.YZ_Plane, [""])
sketch10.MapMode = "FlatFace"
sketch10.AttachmentOffset = App.Placement(Vector(0, 0, -43), App.Rotation())
sketch10.addGeometry(Part.Circle(Vector(18.5, 30, 0), Vector(0, 0, 1), 1.8), False)
sketch10.addGeometry(Part.Circle(Vector(18.5, 0, 0), Vector(0, 0, 1), 1.8), False)
sketch10.addConstraint(Sketcher.Constraint("Equal", 0, 1))
sketch10.addConstraint(Sketcher.Constraint("PointOnObject", 1, 3, -1))
sketch10.addConstraint(Sketcher.Constraint("Vertical", 0, 3, 1, 3))
sketch10.addConstraint(Sketcher.Constraint("Diameter", 0, 3.5))
sketch10.addConstraint(Sketcher.Constraint("DistanceY", -1, 1, 0, 3, 30.0))
sketch10.addConstraint(Sketcher.Constraint("DistanceX", -1, 1, 0, 3, 18.5))
pocket4 = doc.addObject("PartDesign::Pocket", "Pocket003")
body.addObject(pocket4)
pocket4.Profile = sketch10
pocket4.Length = 2

sketch11 = doc.addObject("Sketcher::SketchObject", "Sketch010")
body.addObject(sketch11)
sketch11.AttachmentSupport = (doc.YZ_Plane, [""])
sketch11.MapMode = "FlatFace"
sketch11.AttachmentOffset = App.Placement(Vector(0, 0, -45), App.Rotation())
sketch11.addGeometry(Part.LineSegment(Vector(22, 4, 0), Vector(22, -4, 0)), False)
sketch11.addGeometry(Part.LineSegment(Vector(22, -4, 0), Vector(18, -4, 0)), False)
sketch11.addGeometry(Part.ArcOfCircle(Part.Circle(Vector(18, -1, 0), Vector(0, 0, 1), 3), math.radians(180), math.radians(270)), False)
sketch11.addGeometry(Part.LineSegment(Vector(15, -1, 0), Vector(15, 1, 0)), False)
sketch11.addGeometry(Part.ArcOfCircle(Part.Circle(Vector(18, 1, 0), Vector(0, 0, 1), 3), math.radians(90), math.radians(180)), False)
sketch11.addGeometry(Part.LineSegment(Vector(18, 4, 0), Vector(22, 4, 0)), False)
sketch11.addGeometry(Part.LineSegment(Vector(22, 34, 0), Vector(22, 26, 0)), False)
sketch11.addGeometry(Part.LineSegment(Vector(22, 26, 0), Vector(18, 26, 0)), False)
sketch11.addGeometry(Part.ArcOfCircle(Part.Circle(Vector(18, 29, 0), Vector(0, 0, 1), 3), math.radians(180), math.radians(270)), False)
sketch11.addGeometry(Part.LineSegment(Vector(15, 29, 0), Vector(15, 31, 0)), False)
sketch11.addGeometry(Part.ArcOfCircle(Part.Circle(Vector(18, 31, 0), Vector(0, 0, 1), 3), math.radians(90), math.radians(180)), False)
sketch11.addGeometry(Part.LineSegment(Vector(18, 34, 0), Vector(22, 34, 0)), False)
sketch11.addConstraint(Sketcher.Constraint("Coincident", 0, 2, 1, 1))
sketch11.addConstraint(Sketcher.Constraint("Tangent", 1, 2, 2, 2))
sketch11.addConstraint(Sketcher.Constraint("Tangent", 2, 1, 3, 1))
sketch11.addConstraint(Sketcher.Constraint("Tangent", 3, 2, 4, 2))
sketch11.addConstraint(Sketcher.Constraint("Tangent", 4, 1, 5, 1))
sketch11.addConstraint(Sketcher.Constraint("Coincident", 5, 2, 0, 1))
sketch11.addConstraint(Sketcher.Constraint("Coincident", 6, 2, 7, 1))
sketch11.addConstraint(Sketcher.Constraint("Tangent", 7, 2, 8, 2))
sketch11.addConstraint(Sketcher.Constraint("Tangent", 8, 1, 9, 1))
sketch11.addConstraint(Sketcher.Constraint("Tangent", 9, 2, 10, 2))
sketch11.addConstraint(Sketcher.Constraint("Tangent", 10, 1, 11, 1))
sketch11.addConstraint(Sketcher.Constraint("Coincident", 11, 2, 6, 1))
sketch11.addConstraint(Sketcher.Constraint("Vertical", 0))
sketch11.addConstraint(Sketcher.Constraint("Horizontal", 1))
sketch11.addConstraint(Sketcher.Constraint("Vertical", 3))
sketch11.addConstraint(Sketcher.Constraint("Horizontal", 5))
sketch11.addConstraint(Sketcher.Constraint("Vertical", 6))
sketch11.addConstraint(Sketcher.Constraint("Horizontal", 7))
sketch11.addConstraint(Sketcher.Constraint("Vertical", 9))
sketch11.addConstraint(Sketcher.Constraint("Horizontal", 11))
sketch11.addConstraint(Sketcher.Constraint("Equal", 2, 4))
sketch11.addConstraint(Sketcher.Constraint("Equal", 4, 8))
sketch11.addConstraint(Sketcher.Constraint("Equal", 8, 10))
sketch11.addConstraint(Sketcher.Constraint("Vertical", 4, 3, 8, 3))
sketch11.addConstraint(Sketcher.Constraint("Vertical", 5, 2, 6, 2))
sketch11.addConstraint(Sketcher.Constraint("Equal", 0, 6))
sketch11.addConstraint(Sketcher.Constraint("Radius", 2, 3.0))
sketch11.addConstraint(Sketcher.Constraint("DistanceX", 1, 2, 1, 1, 4.0))
sketch11.addConstraint(Sketcher.Constraint("DistanceY", 0, 2, 0, 1, 8.0))
sketch11.addConstraint(Sketcher.Constraint("DistanceX", -1, 1, 2, 3, 18.0))
sketch11.addConstraint(Sketcher.Constraint("DistanceY", 2, 3, -1, 1, 1.0))
sketch11.addConstraint(Sketcher.Constraint("DistanceY", -1, 1, 8, 3, 29.0))
pocket5 = doc.addObject("PartDesign::Pocket", "Pocket004")
body.addObject(pocket5)
pocket5.Profile = sketch11
pocket5.Length = 1
pocket5.Reversed = True
doc.recompute()

mirrored = doc.addObject("PartDesign::Mirrored", "Mirrored")
body.addObject(mirrored)
mirrored.Originals = [pocket4, pocket5]
mirrored.MirrorPlane = (doc.YZ_Plane, [""])
body.Tip = mirrored

doc.recompute()
